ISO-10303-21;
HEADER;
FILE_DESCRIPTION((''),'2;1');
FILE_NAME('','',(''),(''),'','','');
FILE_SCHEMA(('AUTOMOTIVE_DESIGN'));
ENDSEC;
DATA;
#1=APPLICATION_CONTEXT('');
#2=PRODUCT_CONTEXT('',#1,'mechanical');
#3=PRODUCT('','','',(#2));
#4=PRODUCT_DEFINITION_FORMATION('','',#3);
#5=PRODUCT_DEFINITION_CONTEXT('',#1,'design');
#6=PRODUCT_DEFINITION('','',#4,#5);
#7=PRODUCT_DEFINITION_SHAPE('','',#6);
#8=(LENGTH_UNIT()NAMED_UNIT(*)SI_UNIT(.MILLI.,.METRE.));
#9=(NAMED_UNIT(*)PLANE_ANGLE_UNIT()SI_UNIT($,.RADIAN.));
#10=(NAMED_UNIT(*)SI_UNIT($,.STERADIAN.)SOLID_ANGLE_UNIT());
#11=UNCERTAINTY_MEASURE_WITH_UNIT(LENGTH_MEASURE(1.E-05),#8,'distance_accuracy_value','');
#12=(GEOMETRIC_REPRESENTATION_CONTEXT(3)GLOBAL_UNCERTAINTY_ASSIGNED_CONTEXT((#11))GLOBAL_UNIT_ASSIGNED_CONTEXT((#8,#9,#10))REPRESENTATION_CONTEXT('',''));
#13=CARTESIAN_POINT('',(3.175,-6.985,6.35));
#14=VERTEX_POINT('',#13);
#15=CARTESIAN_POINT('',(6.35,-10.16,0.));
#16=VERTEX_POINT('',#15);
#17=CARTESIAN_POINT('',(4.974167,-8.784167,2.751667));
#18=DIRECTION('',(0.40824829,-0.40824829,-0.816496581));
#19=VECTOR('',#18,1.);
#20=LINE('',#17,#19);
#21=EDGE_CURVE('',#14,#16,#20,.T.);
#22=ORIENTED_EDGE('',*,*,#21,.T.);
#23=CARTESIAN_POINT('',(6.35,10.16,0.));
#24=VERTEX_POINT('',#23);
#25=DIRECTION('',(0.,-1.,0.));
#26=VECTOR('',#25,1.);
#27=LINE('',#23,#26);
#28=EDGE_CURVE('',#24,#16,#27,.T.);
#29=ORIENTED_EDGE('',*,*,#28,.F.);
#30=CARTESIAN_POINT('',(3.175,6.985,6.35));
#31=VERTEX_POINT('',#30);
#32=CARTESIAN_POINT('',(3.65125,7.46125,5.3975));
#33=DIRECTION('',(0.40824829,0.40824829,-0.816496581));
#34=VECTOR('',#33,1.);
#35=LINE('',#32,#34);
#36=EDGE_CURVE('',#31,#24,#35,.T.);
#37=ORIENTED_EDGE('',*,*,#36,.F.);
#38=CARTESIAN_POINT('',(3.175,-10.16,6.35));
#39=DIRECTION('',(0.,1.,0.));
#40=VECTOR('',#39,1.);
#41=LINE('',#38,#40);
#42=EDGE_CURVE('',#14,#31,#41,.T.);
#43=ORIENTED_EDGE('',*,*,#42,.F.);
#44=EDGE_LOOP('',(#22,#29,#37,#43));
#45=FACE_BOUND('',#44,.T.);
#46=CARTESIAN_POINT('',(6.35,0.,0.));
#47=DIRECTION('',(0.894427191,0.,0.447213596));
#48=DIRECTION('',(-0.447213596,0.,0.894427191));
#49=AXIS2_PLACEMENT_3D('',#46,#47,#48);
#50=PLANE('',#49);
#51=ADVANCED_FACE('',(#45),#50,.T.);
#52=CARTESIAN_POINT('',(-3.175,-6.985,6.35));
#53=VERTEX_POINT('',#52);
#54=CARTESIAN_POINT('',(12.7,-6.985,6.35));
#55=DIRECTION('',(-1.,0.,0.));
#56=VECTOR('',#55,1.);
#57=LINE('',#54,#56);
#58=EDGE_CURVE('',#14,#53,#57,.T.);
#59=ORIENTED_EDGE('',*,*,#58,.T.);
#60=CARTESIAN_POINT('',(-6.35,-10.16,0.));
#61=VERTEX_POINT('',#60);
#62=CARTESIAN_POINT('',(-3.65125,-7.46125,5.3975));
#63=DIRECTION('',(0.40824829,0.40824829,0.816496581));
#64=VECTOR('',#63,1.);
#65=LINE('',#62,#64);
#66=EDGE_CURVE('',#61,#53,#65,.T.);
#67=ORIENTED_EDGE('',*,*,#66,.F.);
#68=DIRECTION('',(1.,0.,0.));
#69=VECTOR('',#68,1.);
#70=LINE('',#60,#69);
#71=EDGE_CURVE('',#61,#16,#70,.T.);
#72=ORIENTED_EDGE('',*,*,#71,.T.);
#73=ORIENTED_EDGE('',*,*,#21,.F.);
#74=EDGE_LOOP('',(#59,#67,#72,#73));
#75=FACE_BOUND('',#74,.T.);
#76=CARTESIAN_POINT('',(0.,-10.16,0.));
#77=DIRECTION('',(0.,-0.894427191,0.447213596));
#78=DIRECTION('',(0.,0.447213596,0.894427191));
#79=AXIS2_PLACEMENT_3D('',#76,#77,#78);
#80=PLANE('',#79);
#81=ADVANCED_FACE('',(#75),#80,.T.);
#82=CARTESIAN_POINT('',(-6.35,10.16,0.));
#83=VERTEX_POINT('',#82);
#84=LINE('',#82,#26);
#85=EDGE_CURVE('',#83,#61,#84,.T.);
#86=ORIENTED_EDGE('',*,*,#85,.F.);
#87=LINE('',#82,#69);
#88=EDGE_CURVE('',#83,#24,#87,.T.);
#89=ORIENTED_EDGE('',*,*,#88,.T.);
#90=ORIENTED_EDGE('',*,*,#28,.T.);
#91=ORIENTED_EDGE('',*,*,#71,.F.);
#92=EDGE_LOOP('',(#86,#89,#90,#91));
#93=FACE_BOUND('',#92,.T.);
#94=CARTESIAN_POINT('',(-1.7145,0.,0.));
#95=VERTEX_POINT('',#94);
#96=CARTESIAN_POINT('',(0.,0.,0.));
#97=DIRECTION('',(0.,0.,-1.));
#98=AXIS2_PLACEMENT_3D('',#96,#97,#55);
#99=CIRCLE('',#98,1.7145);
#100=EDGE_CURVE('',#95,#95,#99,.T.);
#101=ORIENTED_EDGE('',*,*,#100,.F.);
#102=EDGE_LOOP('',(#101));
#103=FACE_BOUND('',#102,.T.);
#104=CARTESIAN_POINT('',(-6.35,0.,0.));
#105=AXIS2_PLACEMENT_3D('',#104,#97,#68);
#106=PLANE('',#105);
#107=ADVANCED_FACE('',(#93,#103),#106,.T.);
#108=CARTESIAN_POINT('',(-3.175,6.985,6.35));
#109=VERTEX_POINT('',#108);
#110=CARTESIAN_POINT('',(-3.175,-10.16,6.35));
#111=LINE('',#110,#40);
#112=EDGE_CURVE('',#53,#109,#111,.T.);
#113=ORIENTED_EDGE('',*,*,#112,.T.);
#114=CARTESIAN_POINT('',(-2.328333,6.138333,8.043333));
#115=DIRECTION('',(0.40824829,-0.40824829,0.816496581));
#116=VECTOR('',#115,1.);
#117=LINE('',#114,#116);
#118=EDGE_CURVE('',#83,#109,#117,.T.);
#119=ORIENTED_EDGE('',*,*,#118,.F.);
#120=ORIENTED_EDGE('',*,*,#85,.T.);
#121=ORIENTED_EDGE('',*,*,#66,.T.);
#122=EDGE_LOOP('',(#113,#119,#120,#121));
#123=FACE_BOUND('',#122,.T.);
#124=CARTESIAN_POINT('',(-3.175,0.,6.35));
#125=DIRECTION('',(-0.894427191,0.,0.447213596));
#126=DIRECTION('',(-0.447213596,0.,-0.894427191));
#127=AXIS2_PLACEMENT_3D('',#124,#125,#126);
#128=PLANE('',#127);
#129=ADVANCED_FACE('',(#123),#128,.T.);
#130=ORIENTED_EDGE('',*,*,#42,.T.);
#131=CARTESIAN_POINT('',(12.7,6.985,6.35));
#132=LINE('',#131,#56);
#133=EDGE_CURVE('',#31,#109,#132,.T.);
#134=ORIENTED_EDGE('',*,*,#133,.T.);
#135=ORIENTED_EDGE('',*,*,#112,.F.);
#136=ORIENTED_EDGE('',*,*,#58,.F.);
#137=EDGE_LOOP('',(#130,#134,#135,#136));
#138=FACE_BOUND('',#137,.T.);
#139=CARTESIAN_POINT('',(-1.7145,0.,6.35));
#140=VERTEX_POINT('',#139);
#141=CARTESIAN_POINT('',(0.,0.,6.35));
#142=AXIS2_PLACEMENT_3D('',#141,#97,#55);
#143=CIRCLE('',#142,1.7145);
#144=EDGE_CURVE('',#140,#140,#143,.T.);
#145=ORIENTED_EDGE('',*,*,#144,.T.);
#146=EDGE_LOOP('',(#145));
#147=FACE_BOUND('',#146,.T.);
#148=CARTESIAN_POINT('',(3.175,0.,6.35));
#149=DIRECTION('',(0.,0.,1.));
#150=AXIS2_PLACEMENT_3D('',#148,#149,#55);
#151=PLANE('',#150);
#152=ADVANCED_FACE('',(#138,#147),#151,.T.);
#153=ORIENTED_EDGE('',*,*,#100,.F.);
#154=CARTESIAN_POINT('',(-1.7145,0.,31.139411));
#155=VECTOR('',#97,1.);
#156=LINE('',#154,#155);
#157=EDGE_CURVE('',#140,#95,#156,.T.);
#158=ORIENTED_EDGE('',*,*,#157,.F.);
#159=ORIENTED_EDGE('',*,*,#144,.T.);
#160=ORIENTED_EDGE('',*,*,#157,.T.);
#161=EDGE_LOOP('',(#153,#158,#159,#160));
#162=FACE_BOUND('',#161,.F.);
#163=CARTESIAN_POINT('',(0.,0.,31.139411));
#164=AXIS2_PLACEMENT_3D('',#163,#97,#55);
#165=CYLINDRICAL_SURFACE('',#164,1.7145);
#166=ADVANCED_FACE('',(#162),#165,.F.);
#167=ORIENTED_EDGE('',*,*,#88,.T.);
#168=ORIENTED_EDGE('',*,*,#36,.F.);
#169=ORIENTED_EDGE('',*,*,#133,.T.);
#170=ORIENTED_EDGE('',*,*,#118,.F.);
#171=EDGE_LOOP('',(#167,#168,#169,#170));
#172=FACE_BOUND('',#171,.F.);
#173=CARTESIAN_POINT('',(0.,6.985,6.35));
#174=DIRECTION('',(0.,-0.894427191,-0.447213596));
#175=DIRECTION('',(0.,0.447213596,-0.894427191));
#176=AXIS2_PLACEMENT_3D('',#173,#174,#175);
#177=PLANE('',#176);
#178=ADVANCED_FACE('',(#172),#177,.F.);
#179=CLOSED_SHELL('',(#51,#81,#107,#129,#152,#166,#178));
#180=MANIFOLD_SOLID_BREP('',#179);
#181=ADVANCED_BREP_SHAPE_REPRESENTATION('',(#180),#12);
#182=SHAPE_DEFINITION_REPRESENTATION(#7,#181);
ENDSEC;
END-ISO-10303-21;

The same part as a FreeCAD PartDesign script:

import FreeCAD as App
import Part
import Sketcher
Q = App.Units.Quantity


def add_polygon(sketch, points):
    """Adds a closed chain of lines whose ends are joined by coincident constraints."""
    first, n = sketch.GeometryCount, len(points)
    for a, b in zip(points, points[1:] + points[:1]):
        sketch.addGeometry(Part.LineSegment(App.Vector(*a, 0), App.Vector(*b, 0)), False)
    for i in range(n):
        sketch.addConstraint(Sketcher.Constraint("Coincident", first + i, 2, first + (i + 1) % n, 1))

doc = App.newDocument("Part")
body = doc.addObject("PartDesign::Body", "Body")

sketch1 = doc.addObject("Sketcher::SketchObject", "Sketch")
body.addObject(sketch1)
sketch1.AttachmentSupport = (doc.XZ_Plane, [""])
sketch1.MapMode = "FlatFace"
add_polygon(sketch1, [(-3, 6), (-6, 0), (6, 0), (3, 6)])
sketch1.addConstraint([
    Sketcher.Constraint("Horizontal", 1),
    Sketcher.Constraint("Horizontal", 3),
    Sketcher.Constraint("Symmetric", 0, 2, 1, 2, -1, 1),
    Sketcher.Constraint("Equal", 0, 2),
    Sketcher.Constraint("DistanceX", 1, 1, 1, 2, Q("0.5 in")),
    Sketcher.Constraint("DistanceX", 3, 2, 3, 1, Q("0.25 in")),
    Sketcher.Constraint("DistanceY", -1, 1, 2, 2, Q("0.25 in")),
])
pad1 = doc.addObject("PartDesign::Pad", "Pad")
body.addObject(pad1)
pad1.Profile = sketch1
pad1.Length = Q("0.8 in")
pad1.Midplane = True

sketch2 = doc.addObject("Sketcher::SketchObject", "Sketch001")
body.addObject(sketch2)
sketch2.AttachmentSupport = (doc.YZ_Plane, [""])
sketch2.MapMode = "FlatFace"
add_polygon(sketch2, [(-10.2, 6.3), (-10.2, 0), (-7, 6.3)])
add_polygon(sketch2, [(7, 6.3), (10.2, 0), (10.2, 6.3)])
sketch2.addConstraint([
    Sketcher.Constraint("Vertical", 0),
    Sketcher.Constraint("Horizontal", 2),
    Sketcher.Constraint("Vertical", 4),
    Sketcher.Constraint("Horizontal", 5),
    Sketcher.Constraint("Symmetric", 0, 2, 3, 2, -1, 1),
    Sketcher.Constraint("Symmetric", 1, 2, 5, 2, -2),
    Sketcher.Constraint("PointOnObject", 0, 2, -1),
    Sketcher.Constraint("DistanceY", 0, 2, 0, 1, Q("0.25 in")),
    Sketcher.Constraint("DistanceX", 0, 2, -1, 1, Q("0.4 in")),
    Sketcher.Constraint("DistanceX", 2, 2, 2, 1, Q("0.125 in")),
])
pocket1 = doc.addObject("PartDesign::Pocket", "Pocket")
body.addObject(pocket1)
pocket1.Profile = sketch2
pocket1.Length = Q("1 in")
pocket1.Midplane = True

sketch3 = doc.addObject("Sketcher::SketchObject", "Sketch002")
body.addObject(sketch3)
sketch3.AttachmentSupport = (doc.XY_Plane, [""])
sketch3.MapMode = "FlatFace"
sketch3.AttachmentOffset = App.Placement(App.Vector(0, 0, 0.25 * 25.4), App.Rotation())
sketch3.addGeometry(Part.Circle(App.Vector(0, 0, 0), App.Vector(0, 0, 1), 1.7), False)
sketch3.addConstraint([
    Sketcher.Constraint("Coincident", 0, 3, -1, 1),
    Sketcher.Constraint("Diameter", 0, Q("0.135 in")),
])
doc.recompute()
hole = doc.addObject("PartDesign::Hole", "Hole")
body.addObject(hole)
hole.Profile = sketch3
hole.ThreadType = "None"
hole.Diameter = Q("0.135 in")
hole.DepthType = "ThroughAll"

doc.recompute()
